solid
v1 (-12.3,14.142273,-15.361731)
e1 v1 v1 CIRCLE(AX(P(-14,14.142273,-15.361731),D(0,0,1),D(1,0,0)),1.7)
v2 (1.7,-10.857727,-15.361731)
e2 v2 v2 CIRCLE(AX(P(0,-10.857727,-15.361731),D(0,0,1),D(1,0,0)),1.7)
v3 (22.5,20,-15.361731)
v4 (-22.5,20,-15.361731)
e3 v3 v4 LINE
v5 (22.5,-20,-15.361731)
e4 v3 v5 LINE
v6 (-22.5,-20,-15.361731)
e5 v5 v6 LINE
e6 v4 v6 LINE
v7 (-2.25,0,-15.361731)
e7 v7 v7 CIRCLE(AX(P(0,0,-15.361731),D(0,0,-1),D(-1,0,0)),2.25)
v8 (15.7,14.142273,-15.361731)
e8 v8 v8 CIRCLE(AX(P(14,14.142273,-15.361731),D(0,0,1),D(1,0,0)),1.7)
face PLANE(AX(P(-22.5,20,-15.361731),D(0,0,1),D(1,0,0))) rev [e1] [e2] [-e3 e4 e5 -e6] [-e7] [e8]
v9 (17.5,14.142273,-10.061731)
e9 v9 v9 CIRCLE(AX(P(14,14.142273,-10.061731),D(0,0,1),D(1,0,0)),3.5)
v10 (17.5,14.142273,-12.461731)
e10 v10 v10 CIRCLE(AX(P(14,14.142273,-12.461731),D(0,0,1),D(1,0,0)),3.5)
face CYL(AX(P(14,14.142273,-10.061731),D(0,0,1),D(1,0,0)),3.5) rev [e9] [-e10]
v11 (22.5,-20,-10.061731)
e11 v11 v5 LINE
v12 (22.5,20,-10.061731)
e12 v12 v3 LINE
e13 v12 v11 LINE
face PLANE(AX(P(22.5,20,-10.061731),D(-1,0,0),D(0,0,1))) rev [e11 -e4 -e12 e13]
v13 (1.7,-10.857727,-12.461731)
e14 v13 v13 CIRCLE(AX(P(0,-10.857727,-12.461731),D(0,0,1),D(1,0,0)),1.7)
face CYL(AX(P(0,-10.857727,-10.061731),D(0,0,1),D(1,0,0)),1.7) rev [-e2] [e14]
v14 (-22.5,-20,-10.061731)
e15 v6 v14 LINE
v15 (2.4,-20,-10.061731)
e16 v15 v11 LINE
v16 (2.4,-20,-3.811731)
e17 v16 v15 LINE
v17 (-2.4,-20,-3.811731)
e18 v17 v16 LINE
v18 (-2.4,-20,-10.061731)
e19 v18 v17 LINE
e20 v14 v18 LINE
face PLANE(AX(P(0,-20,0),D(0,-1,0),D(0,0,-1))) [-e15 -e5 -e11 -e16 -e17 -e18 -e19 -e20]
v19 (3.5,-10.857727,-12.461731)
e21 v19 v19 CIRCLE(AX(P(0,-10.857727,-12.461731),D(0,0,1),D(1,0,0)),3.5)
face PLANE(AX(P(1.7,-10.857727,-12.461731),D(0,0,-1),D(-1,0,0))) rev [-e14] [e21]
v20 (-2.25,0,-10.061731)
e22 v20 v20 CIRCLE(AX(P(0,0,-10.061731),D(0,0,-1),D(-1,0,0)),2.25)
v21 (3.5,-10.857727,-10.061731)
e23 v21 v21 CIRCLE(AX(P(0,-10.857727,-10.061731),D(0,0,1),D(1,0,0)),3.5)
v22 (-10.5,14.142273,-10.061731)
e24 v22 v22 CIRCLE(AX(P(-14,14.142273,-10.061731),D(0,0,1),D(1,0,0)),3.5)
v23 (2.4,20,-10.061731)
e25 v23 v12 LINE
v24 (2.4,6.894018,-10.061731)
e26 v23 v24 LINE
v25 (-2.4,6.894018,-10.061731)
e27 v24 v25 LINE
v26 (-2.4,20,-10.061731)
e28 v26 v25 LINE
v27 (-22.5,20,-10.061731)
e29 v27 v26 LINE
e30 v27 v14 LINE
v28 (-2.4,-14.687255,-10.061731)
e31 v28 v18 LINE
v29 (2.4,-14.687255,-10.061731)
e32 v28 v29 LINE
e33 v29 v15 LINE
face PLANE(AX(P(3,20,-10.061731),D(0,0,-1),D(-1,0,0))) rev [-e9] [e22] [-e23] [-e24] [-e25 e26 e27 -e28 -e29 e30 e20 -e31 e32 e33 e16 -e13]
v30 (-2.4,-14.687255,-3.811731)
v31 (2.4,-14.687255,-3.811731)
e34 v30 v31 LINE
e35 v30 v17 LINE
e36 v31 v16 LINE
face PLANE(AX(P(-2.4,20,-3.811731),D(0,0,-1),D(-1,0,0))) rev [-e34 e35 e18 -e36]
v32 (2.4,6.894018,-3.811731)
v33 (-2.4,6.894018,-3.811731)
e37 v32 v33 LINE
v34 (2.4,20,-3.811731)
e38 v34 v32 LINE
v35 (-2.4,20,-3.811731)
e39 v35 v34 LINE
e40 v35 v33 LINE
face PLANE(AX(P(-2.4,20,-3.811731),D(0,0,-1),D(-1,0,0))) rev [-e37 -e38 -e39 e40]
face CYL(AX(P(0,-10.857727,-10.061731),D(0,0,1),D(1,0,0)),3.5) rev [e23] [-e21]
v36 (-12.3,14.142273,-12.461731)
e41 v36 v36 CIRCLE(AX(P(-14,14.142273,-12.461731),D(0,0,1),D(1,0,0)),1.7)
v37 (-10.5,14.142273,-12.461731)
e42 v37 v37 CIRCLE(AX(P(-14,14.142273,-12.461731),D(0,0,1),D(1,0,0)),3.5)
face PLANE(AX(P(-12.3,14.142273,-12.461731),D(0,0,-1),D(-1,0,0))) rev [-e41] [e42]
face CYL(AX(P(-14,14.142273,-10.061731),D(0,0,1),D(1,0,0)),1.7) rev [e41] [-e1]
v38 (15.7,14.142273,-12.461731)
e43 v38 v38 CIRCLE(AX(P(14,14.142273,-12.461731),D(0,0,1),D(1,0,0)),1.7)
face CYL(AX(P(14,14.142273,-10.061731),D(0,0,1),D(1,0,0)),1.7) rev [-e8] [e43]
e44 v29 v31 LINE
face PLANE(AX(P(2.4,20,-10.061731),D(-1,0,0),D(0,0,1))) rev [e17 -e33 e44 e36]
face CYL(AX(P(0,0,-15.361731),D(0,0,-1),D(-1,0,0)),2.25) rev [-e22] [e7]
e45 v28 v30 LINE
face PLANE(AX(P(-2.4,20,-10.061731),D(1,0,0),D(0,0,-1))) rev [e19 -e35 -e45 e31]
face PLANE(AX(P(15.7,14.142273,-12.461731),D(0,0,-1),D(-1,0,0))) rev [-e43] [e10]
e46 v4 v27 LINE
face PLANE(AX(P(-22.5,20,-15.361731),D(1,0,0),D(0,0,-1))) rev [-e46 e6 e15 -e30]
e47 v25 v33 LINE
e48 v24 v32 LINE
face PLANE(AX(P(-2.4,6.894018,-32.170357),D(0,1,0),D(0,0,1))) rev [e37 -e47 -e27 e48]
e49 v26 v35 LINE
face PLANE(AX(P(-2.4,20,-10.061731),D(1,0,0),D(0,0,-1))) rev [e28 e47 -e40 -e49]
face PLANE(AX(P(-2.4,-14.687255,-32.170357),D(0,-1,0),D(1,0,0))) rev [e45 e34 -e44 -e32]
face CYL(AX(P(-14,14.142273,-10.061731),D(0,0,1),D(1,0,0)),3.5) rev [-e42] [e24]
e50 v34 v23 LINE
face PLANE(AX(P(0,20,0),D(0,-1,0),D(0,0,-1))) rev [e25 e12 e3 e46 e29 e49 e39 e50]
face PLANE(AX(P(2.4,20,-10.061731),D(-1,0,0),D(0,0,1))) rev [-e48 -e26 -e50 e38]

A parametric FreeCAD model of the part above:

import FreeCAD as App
import Part
import Sketcher

V = App.Vector
Q = App.Units.Quantity


def add_polygon(sketch, points):
    """Adds a closed chain of lines whose ends are joined by coincident constraints."""
    first, n = sketch.GeometryCount, len(points)
    for a, b in zip(points, points[1:] + points[:1]):
        sketch.addGeometry(Part.LineSegment(App.Vector(*a, 0), App.Vector(*b, 0)), False)
    for i in range(n):
        sketch.addConstraint(Sketcher.Constraint("Coincident", first + i, 2, first + (i + 1) % n, 1))

doc = App.newDocument("Part")
params = doc.addObject("Spreadsheet::Sheet", "Params")
for row, (alias, value) in enumerate([
    ("sketch1_width", "45 mm"),
    ("sketch1_width2", "4.8 mm"),
    ("sketch1_height", "5.3 mm"),
    ("sketch1_height2", "6.25 mm"),
    ("pad1_length", "40 mm"),
    ("sketch2_width", "4.8 mm"),
    ("pocket1_length", "6.25 mm"),
    ("sketch3_diameter", "3.4 mm"),
    ("hole_diameter", "3.4 mm"),
    ("hole_cbore_diameter", "7 mm"),
    ("hole_cbore_depth", "2.4 mm"),
    ("sketch4_diameter", "4.5 mm"),
    ("hole2_diameter", "4.5 mm"),
], start=1):
    params.set(f"A{row}", alias)
    params.set(f"B{row}", "=" + value)
    params.setAlias(f"B{row}", alias)

body = doc.addObject("PartDesign::Body", "Body")

sketch1 = body.newObject("Sketcher::SketchObject", "Sketch")
sketch1.AttachmentSupport = (doc.getObject("XZ_Plane"), [""])
sketch1.MapMode = "FlatFace"
add_polygon(sketch1, [(-2.4, -10.1), (-2.4, -3.8), (2.4, -3.8), (2.4, -10.1), (22.5, -10.1), (22.5, -15.4), (-22.5, -15.4), (-22.5, -10.1)])
sketch1.addConstraint([
    Sketcher.Constraint("Vertical", 0),
    Sketcher.Constraint("Horizontal", 1),
    Sketcher.Constraint("Vertical", 2),
    Sketcher.Constraint("Horizontal", 3),
    Sketcher.Constraint("Vertical", 4),
    Sketcher.Constraint("Horizontal", 5),
    Sketcher.Constraint("Vertical", 6),
    Sketcher.Constraint("Horizontal", 7),
    Sketcher.Constraint("Symmetric", 3, 2, 6, 2, -2),
    Sketcher.Constraint("Equal", 3, 7),
    Sketcher.Constraint("DistanceX", 5, 2, 5, 1, Q("45 mm")),
    Sketcher.Constraint("DistanceX", 1, 1, 1, 2, Q("4.8 mm")),
    Sketcher.Constraint("DistanceY", 4, 2, 4, 1, Q("5.3 mm")),
    Sketcher.Constraint("DistanceY", 0, 1, 0, 2, Q("6.25 mm")),
    Sketcher.Constraint("DistanceY", 0, 2, -1, 1, Q("3.811731 mm")),
])
sketch1.setExpression("Constraints[18]", "Params.sketch1_width")
sketch1.setExpression("Constraints[19]", "Params.sketch1_width2")
sketch1.setExpression("Constraints[20]", "Params.sketch1_height")
sketch1.setExpression("Constraints[21]", "Params.sketch1_height2")
pad1 = body.newObject("PartDesign::Pad", "Pad")
pad1.Profile = sketch1
pad1.setExpression("Length", "Params.pad1_length")
pad1.Midplane = True

sketch2 = body.newObject("Sketcher::SketchObject", "Sketch001")
sketch2.AttachmentSupport = (doc.getObject("XY_Plane"), [""])
sketch2.MapMode = "FlatFace"
sketch2.AttachmentOffset = App.Placement(V(0, 0, -3.811731), App.Rotation())
add_polygon(sketch2, [(-2.4, 6.9), (-2.4, -14.7), (2.4, -14.7), (2.4, 6.9)])
sketch2.addConstraint([
    Sketcher.Constraint("Vertical", 0),
    Sketcher.Constraint("Horizontal", 1),
    Sketcher.Constraint("Vertical", 2),
    Sketcher.Constraint("Horizontal", 3),
    Sketcher.Constraint("DistanceX", 1, 1, 1, 2, Q("4.8 mm")),
    Sketcher.Constraint("DistanceX", 0, 2, -1, 1, Q("2.4 mm")),
    Sketcher.Constraint("DistanceY", 0, 2, 0, 1, Q("21.581273 mm")),
    Sketcher.Constraint("DistanceY", 0, 2, -1, 1, Q("14.687255 mm")),
])
sketch2.setExpression("Constraints[8]", "Params.sketch2_width")
pocket1 = body.newObject("PartDesign::Pocket", "Pocket")
pocket1.Profile = sketch2
pocket1.setExpression("Length", "Params.pocket1_length")

sketch3 = body.newObject("Sketcher::SketchObject", "Sketch002")
sketch3.AttachmentSupport = (doc.getObject("XY_Plane"), [""])
sketch3.MapMode = "FlatFace"
sketch3.AttachmentOffset = App.Placement(V(0, 0, -10.061731), App.Rotation())
sketch3.addGeometry([
    Part.Circle(V(-14, 14.1, 0), V(0, 0, 1), 1.7),
    Part.Circle(V(14, 14.1, 0), V(0, 0, 1), 1.7),
    Part.Circle(V(0, -10.9, 0), V(0, 0, 1), 1.7),
], False)
sketch3.addConstraint([
    Sketcher.Constraint("Equal", 0, 1),
    Sketcher.Constraint("Equal", 1, 2),
    Sketcher.Constraint("Symmetric", 0, 3, 1, 3, -2),
    Sketcher.Constraint("PointOnObject", 2, 3, -2),
    Sketcher.Constraint("Diameter", 0, Q("3.4 mm")),
    Sketcher.Constraint("DistanceX", 0, 3, -1, 1, Q("14 mm")),
    Sketcher.Constraint("DistanceY", 2, 3, 0, 3, Q("25 mm")),
    Sketcher.Constraint("DistanceY", -1, 1, 0, 3, Q("14.142273 mm")),
])
sketch3.setExpression("Constraints[4]", "Params.sketch3_diameter")
doc.recompute()
hole = body.newObject("PartDesign::Hole", "Hole")
hole.Profile = sketch3
hole.ThreadType = "None"
hole.setExpression("Diameter", "Params.hole_diameter")
hole.DepthType = "ThroughAll"
hole.HoleCutType = "Counterbore"
hole.setExpression("HoleCutDiameter", "Params.hole_cbore_diameter")
hole.setExpression("HoleCutDepth", "Params.hole_cbore_depth")

sketch4 = body.newObject("Sketcher::SketchObject", "Sketch003")
sketch4.AttachmentSupport = (doc.getObject("XY_Plane"), [""])
sketch4.MapMode = "FlatFace"
sketch4.AttachmentOffset = App.Placement(V(0, 0, -15.361731), App.Rotation())
sketch4.addGeometry(Part.Circle(V(0, 0, 0), V(0, 0, 1), 2.2), False)
sketch4.addConstraint([
    Sketcher.Constraint("Coincident", 0, 3, -1, 1),
    Sketcher.Constraint("Diameter", 0, Q("4.5 mm")),
])
sketch4.setExpression("Constraints[1]", "Params.sketch4_diameter")
doc.recompute()
hole2 = body.newObject("PartDesign::Hole", "Hole001")
hole2.Profile = sketch4
hole2.ThreadType = "None"
hole2.setExpression("Diameter", "Params.hole2_diameter")
hole2.DepthType = "ThroughAll"
hole2.Reversed = True

doc.recompute()
